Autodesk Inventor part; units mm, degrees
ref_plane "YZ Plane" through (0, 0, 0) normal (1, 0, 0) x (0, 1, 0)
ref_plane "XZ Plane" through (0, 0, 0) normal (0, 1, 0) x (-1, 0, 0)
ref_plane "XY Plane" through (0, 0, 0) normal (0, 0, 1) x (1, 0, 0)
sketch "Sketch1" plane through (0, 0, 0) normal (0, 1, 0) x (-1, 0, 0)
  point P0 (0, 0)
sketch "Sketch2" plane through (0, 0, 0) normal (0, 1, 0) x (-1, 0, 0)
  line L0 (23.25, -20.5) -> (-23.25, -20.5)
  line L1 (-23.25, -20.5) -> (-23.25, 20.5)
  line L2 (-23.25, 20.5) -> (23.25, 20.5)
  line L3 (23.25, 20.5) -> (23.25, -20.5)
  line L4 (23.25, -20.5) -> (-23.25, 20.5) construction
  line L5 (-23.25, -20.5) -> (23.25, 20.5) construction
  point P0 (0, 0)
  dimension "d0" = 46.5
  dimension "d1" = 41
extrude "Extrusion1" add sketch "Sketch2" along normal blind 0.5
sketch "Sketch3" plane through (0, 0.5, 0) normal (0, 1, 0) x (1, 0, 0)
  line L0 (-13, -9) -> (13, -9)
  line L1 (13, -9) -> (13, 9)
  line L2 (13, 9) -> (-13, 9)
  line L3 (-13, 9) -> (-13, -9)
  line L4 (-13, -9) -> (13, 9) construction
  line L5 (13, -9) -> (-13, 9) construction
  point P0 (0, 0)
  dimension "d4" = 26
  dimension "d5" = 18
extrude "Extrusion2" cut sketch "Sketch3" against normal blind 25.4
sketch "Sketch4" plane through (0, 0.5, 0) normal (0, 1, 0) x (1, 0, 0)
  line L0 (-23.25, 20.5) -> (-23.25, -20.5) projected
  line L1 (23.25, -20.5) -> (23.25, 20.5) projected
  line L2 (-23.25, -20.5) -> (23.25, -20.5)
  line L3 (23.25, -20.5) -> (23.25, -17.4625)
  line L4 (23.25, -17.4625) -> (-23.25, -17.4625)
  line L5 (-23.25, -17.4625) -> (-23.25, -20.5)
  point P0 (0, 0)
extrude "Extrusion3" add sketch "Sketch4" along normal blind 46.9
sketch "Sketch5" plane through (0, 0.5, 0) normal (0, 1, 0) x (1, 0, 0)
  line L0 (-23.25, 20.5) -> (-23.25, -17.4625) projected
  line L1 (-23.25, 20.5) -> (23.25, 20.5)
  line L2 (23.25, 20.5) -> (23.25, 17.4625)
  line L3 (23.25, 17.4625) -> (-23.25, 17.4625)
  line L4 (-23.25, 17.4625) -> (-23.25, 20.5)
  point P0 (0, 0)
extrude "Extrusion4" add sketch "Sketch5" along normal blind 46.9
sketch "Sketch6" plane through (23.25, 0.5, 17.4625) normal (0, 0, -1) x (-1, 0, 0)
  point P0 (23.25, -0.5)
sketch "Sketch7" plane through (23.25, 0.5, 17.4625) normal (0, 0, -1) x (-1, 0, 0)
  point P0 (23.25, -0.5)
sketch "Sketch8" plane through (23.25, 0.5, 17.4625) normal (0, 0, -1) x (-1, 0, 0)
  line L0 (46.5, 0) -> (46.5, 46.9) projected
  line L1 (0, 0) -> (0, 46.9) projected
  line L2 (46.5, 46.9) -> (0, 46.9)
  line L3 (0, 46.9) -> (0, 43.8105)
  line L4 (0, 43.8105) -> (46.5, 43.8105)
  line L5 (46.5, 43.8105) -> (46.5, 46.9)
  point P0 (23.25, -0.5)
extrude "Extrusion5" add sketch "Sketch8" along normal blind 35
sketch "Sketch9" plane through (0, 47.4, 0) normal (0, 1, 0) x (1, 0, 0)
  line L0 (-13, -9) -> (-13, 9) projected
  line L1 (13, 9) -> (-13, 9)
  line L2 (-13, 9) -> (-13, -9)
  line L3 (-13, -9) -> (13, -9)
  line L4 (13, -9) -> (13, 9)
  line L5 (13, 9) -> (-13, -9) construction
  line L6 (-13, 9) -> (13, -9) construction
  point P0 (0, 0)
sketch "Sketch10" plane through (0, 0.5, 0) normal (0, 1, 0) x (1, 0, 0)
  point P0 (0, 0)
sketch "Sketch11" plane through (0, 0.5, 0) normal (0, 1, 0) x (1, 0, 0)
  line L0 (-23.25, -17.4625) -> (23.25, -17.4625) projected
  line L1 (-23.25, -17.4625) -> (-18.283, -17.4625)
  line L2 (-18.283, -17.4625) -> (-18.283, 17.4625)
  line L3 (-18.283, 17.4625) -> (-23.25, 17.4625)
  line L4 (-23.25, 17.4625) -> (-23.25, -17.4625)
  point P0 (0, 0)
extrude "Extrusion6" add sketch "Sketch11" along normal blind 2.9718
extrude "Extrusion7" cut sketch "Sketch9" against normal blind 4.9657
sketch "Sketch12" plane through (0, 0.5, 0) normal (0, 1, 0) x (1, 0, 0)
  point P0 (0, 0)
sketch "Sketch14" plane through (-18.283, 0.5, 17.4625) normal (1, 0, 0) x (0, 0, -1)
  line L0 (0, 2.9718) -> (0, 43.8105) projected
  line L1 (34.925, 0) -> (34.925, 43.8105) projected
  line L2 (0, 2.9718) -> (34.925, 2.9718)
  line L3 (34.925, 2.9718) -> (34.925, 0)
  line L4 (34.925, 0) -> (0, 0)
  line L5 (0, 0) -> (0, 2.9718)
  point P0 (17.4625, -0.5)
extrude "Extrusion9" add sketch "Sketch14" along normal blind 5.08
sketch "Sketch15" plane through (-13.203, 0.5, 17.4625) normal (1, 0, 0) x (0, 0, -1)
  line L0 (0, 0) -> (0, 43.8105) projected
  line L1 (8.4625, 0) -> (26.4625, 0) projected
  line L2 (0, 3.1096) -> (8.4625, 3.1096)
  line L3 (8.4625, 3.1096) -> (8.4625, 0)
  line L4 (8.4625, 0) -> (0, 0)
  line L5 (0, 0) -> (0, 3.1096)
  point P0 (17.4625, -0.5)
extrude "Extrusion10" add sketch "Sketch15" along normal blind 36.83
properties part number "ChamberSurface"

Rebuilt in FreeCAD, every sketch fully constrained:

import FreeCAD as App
import Part
import Sketcher

V = App.Vector
Q = App.Units.Quantity

doc = App.newDocument("Part")
body = doc.addObject("PartDesign::Body", "Body")

sketch1 = doc.addObject("Sketcher::SketchObject", "Sketch")
body.addObject(sketch1)
sketch1.AttachmentSupport = (doc.XZ_Plane, [""])
sketch1.MapMode = "FlatFace"
sketch1.addGeometry([
    Part.LineSegment(V(23.25, -20.5, 0), V(-23.25, -20.5, 0)),
    Part.LineSegment(V(-23.25, -20.5, 0), V(-23.25, 20.5, 0)),
    Part.LineSegment(V(-23.25, 20.5, 0), V(23.25, 20.5, 0)),
    Part.LineSegment(V(23.25, 20.5, 0), V(23.25, -20.5, 0)),
], False)
sketch1.addConstraint([
    Sketcher.Constraint("Coincident", 0, 2, 1, 1),
    Sketcher.Constraint("Coincident", 1, 2, 2, 1),
    Sketcher.Constraint("Coincident", 2, 2, 3, 1),
    Sketcher.Constraint("Coincident", 3, 2, 0, 1),
    Sketcher.Constraint("Horizontal", 0),
    Sketcher.Constraint("Vertical", 1),
    Sketcher.Constraint("Horizontal", 2),
    Sketcher.Constraint("Vertical", 3),
    Sketcher.Constraint("Symmetric", 0, 2, 2, 2, -1, 1),
    Sketcher.Constraint("DistanceY", 1, 1, 1, 2, Q("41 mm")),
    Sketcher.Constraint("DistanceX", 0, 2, 0, 1, Q("46.5 mm")),
])
pad1 = doc.addObject("PartDesign::Pad", "Pad")
body.addObject(pad1)
pad1.Profile = sketch1
pad1.Length = 0.5
pad1.Reversed = True

sketch2 = doc.addObject("Sketcher::SketchObject", "Sketch001")
body.addObject(sketch2)
sketch2.AttachmentSupport = (doc.XZ_Plane, [""])
sketch2.MapMode = "FlatFace"
sketch2.AttachmentOffset = App.Placement(V(0, 0, -0.5), App.Rotation())
sketch2.addGeometry([
    Part.LineSegment(V(-13, -9, 0), V(-13, 9, 0)),
    Part.LineSegment(V(-13, 9, 0), V(13, 9, 0)),
    Part.LineSegment(V(13, 9, 0), V(13, -9, 0)),
    Part.LineSegment(V(13, -9, 0), V(-13, -9, 0)),
], False)
sketch2.addConstraint([
    Sketcher.Constraint("Coincident", 0, 2, 1, 1),
    Sketcher.Constraint("Coincident", 1, 2, 2, 1),
    Sketcher.Constraint("Coincident", 2, 2, 3, 1),
    Sketcher.Constraint("Coincident", 3, 2, 0, 1),
    Sketcher.Constraint("Vertical", 0),
    Sketcher.Constraint("Horizontal", 1),
    Sketcher.Constraint("Vertical", 2),
    Sketcher.Constraint("Horizontal", 3),
    Sketcher.Constraint("Symmetric", 0, 2, 2, 2, -1, 1),
    Sketcher.Constraint("DistanceX", 1, 1, 1, 2, Q("26 mm")),
    Sketcher.Constraint("DistanceY", 0, 1, 0, 2, Q("18 mm")),
])
pocket1 = doc.addObject("PartDesign::Pocket", "Pocket")
body.addObject(pocket1)
pocket1.Profile = sketch2
pocket1.Length = 25.4
pocket1.Reversed = True

sketch3 = doc.addObject("Sketcher::SketchObject", "Sketch002")
body.addObject(sketch3)
sketch3.AttachmentSupport = (doc.XZ_Plane, [""])
sketch3.MapMode = "FlatFace"
sketch3.AttachmentOffset = App.Placement(V(0, 0, -0.5), App.Rotation())
sketch3.addGeometry([
    Part.LineSegment(V(23.25, 17.4625, 0), V(-23.25, 17.4625, 0)),
    Part.LineSegment(V(-23.25, 17.4625, 0), V(-23.25, 20.5, 0)),
    Part.LineSegment(V(-23.25, 20.5, 0), V(23.25, 20.5, 0)),
    Part.LineSegment(V(23.25, 20.5, 0), V(23.25, 17.4625, 0)),
], False)
sketch3.addConstraint([
    Sketcher.Constraint("Coincident", 0, 2, 1, 1),
    Sketcher.Constraint("Coincident", 1, 2, 2, 1),
    Sketcher.Constraint("Coincident", 2, 2, 3, 1),
    Sketcher.Constraint("Coincident", 3, 2, 0, 1),
    Sketcher.Constraint("Horizontal", 0),
    Sketcher.Constraint("Vertical", 1),
    Sketcher.Constraint("Horizontal", 2),
    Sketcher.Constraint("Vertical", 3),
    Sketcher.Constraint("DistanceX", 0, 2, 0, 1, Q("46.5 mm")),
    Sketcher.Constraint("DistanceY", -1, 1, 1, 2, Q("20.5 mm")),
    Sketcher.Constraint("DistanceX", 0, 2, -1, 1, Q("23.25 mm")),
    Sketcher.Constraint("DistanceY", 1, 1, 1, 2, Q("3.0375 mm")),
])
pad2 = doc.addObject("PartDesign::Pad", "Pad001")
body.addObject(pad2)
pad2.Profile = sketch3
pad2.Length = 46.9
pad2.Reversed = True

sketch4 = doc.addObject("Sketcher::SketchObject", "Sketch003")
body.addObject(sketch4)
sketch4.AttachmentSupport = (doc.XZ_Plane, [""])
sketch4.MapMode = "FlatFace"
sketch4.AttachmentOffset = App.Placement(V(0, 0, -0.5), App.Rotation())
sketch4.addGeometry([
    Part.LineSegment(V(23.25, -20.5, 0), V(-23.25, -20.5, 0)),
    Part.LineSegment(V(-23.25, -20.5, 0), V(-23.25, -17.4625, 0)),
    Part.LineSegment(V(-23.25, -17.4625, 0), V(23.25, -17.4625, 0)),
    Part.LineSegment(V(23.25, -17.4625, 0), V(23.25, -20.5, 0)),
], False)
sketch4.addConstraint([
    Sketcher.Constraint("Coincident", 0, 2, 1, 1),
    Sketcher.Constraint("Coincident", 1, 2, 2, 1),
    Sketcher.Constraint("Coincident", 2, 2, 3, 1),
    Sketcher.Constraint("Coincident", 3, 2, 0, 1),
    Sketcher.Constraint("Horizontal", 0),
    Sketcher.Constraint("Vertical", 1),
    Sketcher.Constraint("Horizontal", 2),
    Sketcher.Constraint("Vertical", 3),
    Sketcher.Constraint("DistanceX", 0, 2, 0, 1, Q("46.5 mm")),
    Sketcher.Constraint("DistanceY", 0, 2, -1, 1, Q("20.5 mm")),
    Sketcher.Constraint("DistanceX", 0, 2, -1, 1, Q("23.25 mm")),
    Sketcher.Constraint("DistanceY", 1, 1, 1, 2, Q("3.0375 mm")),
])
pad3 = doc.addObject("PartDesign::Pad", "Pad002")
body.addObject(pad3)
pad3.Profile = sketch4
pad3.Length = 46.9
pad3.Reversed = True

sketch5 = doc.addObject("Sketcher::SketchObject", "Sketch004")
body.addObject(sketch5)
sketch5.AttachmentSupport = (doc.XY_Plane, [""])
sketch5.MapMode = "FlatFace"
sketch5.AttachmentOffset = App.Placement(V(0, 0, 17.4625), App.Rotation())
sketch5.addGeometry([
    Part.LineSegment(V(23.25, 44.3105, 0), V(-23.25, 44.3105, 0)),
    Part.LineSegment(V(-23.25, 44.3105, 0), V(-23.25, 47.4, 0)),
    Part.LineSegment(V(-23.25, 47.4, 0), V(23.25, 47.4, 0)),
    Part.LineSegment(V(23.25, 47.4, 0), V(23.25, 44.3105, 0)),
], False)
sketch5.addConstraint([
    Sketcher.Constraint("Coincident", 0, 2, 1, 1),
    Sketcher.Constraint("Coincident", 1, 2, 2, 1),
    Sketcher.Constraint("Coincident", 2, 2, 3, 1),
    Sketcher.Constraint("Coincident", 3, 2, 0, 1),
    Sketcher.Constraint("Horizontal", 0),
    Sketcher.Constraint("Vertical", 1),
    Sketcher.Constraint("Horizontal", 2),
    Sketcher.Constraint("Vertical", 3),
    Sketcher.Constraint("DistanceX", 0, 2, 0, 1, Q("46.5 mm")),
    Sketcher.Constraint("DistanceY", -1, 1, 1, 2, Q("47.4 mm")),
    Sketcher.Constraint("DistanceX", 0, 2, -1, 1, Q("23.25 mm")),
    Sketcher.Constraint("DistanceY", 1, 1, 1, 2, Q("3.0895 mm")),
])
pad4 = doc.addObject("PartDesign::Pad", "Pad003")
body.addObject(pad4)
pad4.Profile = sketch5
pad4.Length = 35
pad4.Reversed = True

sketch6 = doc.addObject("Sketcher::SketchObject", "Sketch005")
body.addObject(sketch6)
sketch6.AttachmentSupport = (doc.XZ_Plane, [""])
sketch6.MapMode = "FlatFace"
sketch6.AttachmentOffset = App.Placement(V(0, 0, -0.5), App.Rotation())
sketch6.addGeometry([
    Part.LineSegment(V(-23.25, -17.4625, 0), V(-23.25, 17.4625, 0)),
    Part.LineSegment(V(-23.25, 17.4625, 0), V(-18.283, 17.4625, 0)),
    Part.LineSegment(V(-18.283, 17.4625, 0), V(-18.283, -17.4625, 0)),
    Part.LineSegment(V(-18.283, -17.4625, 0), V(-23.25, -17.4625, 0)),
], False)
sketch6.addConstraint([
    Sketcher.Constraint("Coincident", 0, 2, 1, 1),
    Sketcher.Constraint("Coincident", 1, 2, 2, 1),
    Sketcher.Constraint("Coincident", 2, 2, 3, 1),
    Sketcher.Constraint("Coincident", 3, 2, 0, 1),
    Sketcher.Constraint("Vertical", 0),
    Sketcher.Constraint("Horizontal", 1),
    Sketcher.Constraint("Vertical", 2),
    Sketcher.Constraint("Horizontal", 3),
    Sketcher.Constraint("DistanceX", 1, 1, 1, 2, Q("4.967 mm")),
    Sketcher.Constraint("DistanceY", 0, 1, 0, 2, Q("34.925 mm")),
    Sketcher.Constraint("DistanceX", 0, 2, -1, 1, Q("23.25 mm")),
    Sketcher.Constraint("DistanceY", -1, 1, 0, 2, Q("17.4625 mm")),
])
pad5 = doc.addObject("PartDesign::Pad", "Pad004")
body.addObject(pad5)
pad5.Profile = sketch6
pad5.Length = 2.9718
pad5.Reversed = True

sketch7 = doc.addObject("Sketcher::SketchObject", "Sketch006")
body.addObject(sketch7)
sketch7.AttachmentSupport = (doc.XZ_Plane, [""])
sketch7.MapMode = "FlatFace"
sketch7.AttachmentOffset = App.Placement(V(0, 0, -47.4), App.Rotation())
sketch7.addGeometry([
    Part.LineSegment(V(-13, -9, 0), V(-13, 9, 0)),
    Part.LineSegment(V(-13, 9, 0), V(13, 9, 0)),
    Part.LineSegment(V(13, 9, 0), V(13, -9, 0)),
    Part.LineSegment(V(13, -9, 0), V(-13, -9, 0)),
], False)
sketch7.addConstraint([
    Sketcher.Constraint("Coincident", 0, 2, 1, 1),
    Sketcher.Constraint("Coincident", 1, 2, 2, 1),
    Sketcher.Constraint("Coincident", 2, 2, 3, 1),
    Sketcher.Constraint("Coincident", 3, 2, 0, 1),
    Sketcher.Constraint("Vertical", 0),
    Sketcher.Constraint("Horizontal", 1),
    Sketcher.Constraint("Vertical", 2),
    Sketcher.Constraint("Horizontal", 3),
    Sketcher.Constraint("Symmetric", 0, 2, 2, 2, -1, 1),
    Sketcher.Constraint("DistanceX", 1, 1, 1, 2, Q("26 mm")),
    Sketcher.Constraint("DistanceY", 0, 1, 0, 2, Q("18 mm")),
])
pocket2 = doc.addObject("PartDesign::Pocket", "Pocket001")
body.addObject(pocket2)
pocket2.Profile = sketch7
pocket2.Length = 4.9657
pocket2.Reversed = True

sketch8 = doc.addObject("Sketcher::SketchObject", "Sketch007")
body.addObject(sketch8)
sketch8.AttachmentSupport = (doc.YZ_Plane, [""])
sketch8.MapMode = "FlatFace"
sketch8.AttachmentOffset = App.Placement(V(0, 0, -18.283), App.Rotation())
sketch8.addGeometry([
    Part.LineSegment(V(0.5, 17.4625, 0), V(0.5, -17.4625, 0)),
    Part.LineSegment(V(0.5, -17.4625, 0), V(3.4718, -17.4625, 0)),
    Part.LineSegment(V(3.4718, -17.4625, 0), V(3.4718, 17.4625, 0)),
    Part.LineSegment(V(3.4718, 17.4625, 0), V(0.5, 17.4625, 0)),
], False)
sketch8.addConstraint([
    Sketcher.Constraint("Coincident", 0, 2, 1, 1),
    Sketcher.Constraint("Coincident", 1, 2, 2, 1),
    Sketcher.Constraint("Coincident", 2, 2, 3, 1),
    Sketcher.Constraint("Coincident", 3, 2, 0, 1),
    Sketcher.Constraint("Vertical", 0),
    Sketcher.Constraint("Horizontal", 1),
    Sketcher.Constraint("Vertical", 2),
    Sketcher.Constraint("Horizontal", 3),
    Sketcher.Constraint("DistanceX", -1, 1, 0, 2, Q("0.5 mm")),
    Sketcher.Constraint("DistanceY", 0, 2, 0, 1, Q("34.925 mm")),
    Sketcher.Constraint("DistanceX", 1, 1, 1, 2, Q("2.9718 mm")),
    Sketcher.Constraint("DistanceY", 0, 2, -1, 1, Q("17.4625 mm")),
])
pad6 = doc.addObject("PartDesign::Pad", "Pad005")
body.addObject(pad6)
pad6.Profile = sketch8
pad6.Length = 5.08

sketch9 = doc.addObject("Sketcher::SketchObject", "Sketch008")
body.addObject(sketch9)
sketch9.AttachmentSupport = (doc.YZ_Plane, [""])
sketch9.MapMode = "FlatFace"
sketch9.AttachmentOffset = App.Placement(V(0, 0, -13.203), App.Rotation())
sketch9.addGeometry([
    Part.LineSegment(V(3.6096, 17.4625, 0), V(0.5, 17.4625, 0)),
    Part.LineSegment(V(0.5, 17.4625, 0), V(0.5, 9, 0)),
    Part.LineSegment(V(0.5, 9, 0), V(3.6096, 9, 0)),
    Part.LineSegment(V(3.6096, 9, 0), V(3.6096, 17.4625, 0)),
], False)
sketch9.addConstraint([
    Sketcher.Constraint("Coincident", 0, 2, 1, 1),
    Sketcher.Constraint("Coincident", 1, 2, 2, 1),
    Sketcher.Constraint("Coincident", 2, 2, 3, 1),
    Sketcher.Constraint("Coincident", 3, 2, 0, 1),
    Sketcher.Constraint("Horizontal", 0),
    Sketcher.Constraint("Vertical", 1),
    Sketcher.Constraint("Horizontal", 2),
    Sketcher.Constraint("Vertical", 3),
    Sketcher.Constraint("DistanceY", -1, 1, 1, 2, Q("9 mm")),
    Sketcher.Constraint("DistanceX", -1, 1, 0, 2, Q("0.5 mm")),
    Sketcher.Constraint("DistanceX", 0, 2, 0, 1, Q("3.1096 mm")),
    Sketcher.Constraint("DistanceY", 1, 2, 1, 1, Q("8.4625 mm")),
])
pad7 = doc.addObject("PartDesign::Pad", "Pad006")
body.addObject(pad7)
pad7.Profile = sketch9
pad7.Length = 36.83

doc.recompute()
